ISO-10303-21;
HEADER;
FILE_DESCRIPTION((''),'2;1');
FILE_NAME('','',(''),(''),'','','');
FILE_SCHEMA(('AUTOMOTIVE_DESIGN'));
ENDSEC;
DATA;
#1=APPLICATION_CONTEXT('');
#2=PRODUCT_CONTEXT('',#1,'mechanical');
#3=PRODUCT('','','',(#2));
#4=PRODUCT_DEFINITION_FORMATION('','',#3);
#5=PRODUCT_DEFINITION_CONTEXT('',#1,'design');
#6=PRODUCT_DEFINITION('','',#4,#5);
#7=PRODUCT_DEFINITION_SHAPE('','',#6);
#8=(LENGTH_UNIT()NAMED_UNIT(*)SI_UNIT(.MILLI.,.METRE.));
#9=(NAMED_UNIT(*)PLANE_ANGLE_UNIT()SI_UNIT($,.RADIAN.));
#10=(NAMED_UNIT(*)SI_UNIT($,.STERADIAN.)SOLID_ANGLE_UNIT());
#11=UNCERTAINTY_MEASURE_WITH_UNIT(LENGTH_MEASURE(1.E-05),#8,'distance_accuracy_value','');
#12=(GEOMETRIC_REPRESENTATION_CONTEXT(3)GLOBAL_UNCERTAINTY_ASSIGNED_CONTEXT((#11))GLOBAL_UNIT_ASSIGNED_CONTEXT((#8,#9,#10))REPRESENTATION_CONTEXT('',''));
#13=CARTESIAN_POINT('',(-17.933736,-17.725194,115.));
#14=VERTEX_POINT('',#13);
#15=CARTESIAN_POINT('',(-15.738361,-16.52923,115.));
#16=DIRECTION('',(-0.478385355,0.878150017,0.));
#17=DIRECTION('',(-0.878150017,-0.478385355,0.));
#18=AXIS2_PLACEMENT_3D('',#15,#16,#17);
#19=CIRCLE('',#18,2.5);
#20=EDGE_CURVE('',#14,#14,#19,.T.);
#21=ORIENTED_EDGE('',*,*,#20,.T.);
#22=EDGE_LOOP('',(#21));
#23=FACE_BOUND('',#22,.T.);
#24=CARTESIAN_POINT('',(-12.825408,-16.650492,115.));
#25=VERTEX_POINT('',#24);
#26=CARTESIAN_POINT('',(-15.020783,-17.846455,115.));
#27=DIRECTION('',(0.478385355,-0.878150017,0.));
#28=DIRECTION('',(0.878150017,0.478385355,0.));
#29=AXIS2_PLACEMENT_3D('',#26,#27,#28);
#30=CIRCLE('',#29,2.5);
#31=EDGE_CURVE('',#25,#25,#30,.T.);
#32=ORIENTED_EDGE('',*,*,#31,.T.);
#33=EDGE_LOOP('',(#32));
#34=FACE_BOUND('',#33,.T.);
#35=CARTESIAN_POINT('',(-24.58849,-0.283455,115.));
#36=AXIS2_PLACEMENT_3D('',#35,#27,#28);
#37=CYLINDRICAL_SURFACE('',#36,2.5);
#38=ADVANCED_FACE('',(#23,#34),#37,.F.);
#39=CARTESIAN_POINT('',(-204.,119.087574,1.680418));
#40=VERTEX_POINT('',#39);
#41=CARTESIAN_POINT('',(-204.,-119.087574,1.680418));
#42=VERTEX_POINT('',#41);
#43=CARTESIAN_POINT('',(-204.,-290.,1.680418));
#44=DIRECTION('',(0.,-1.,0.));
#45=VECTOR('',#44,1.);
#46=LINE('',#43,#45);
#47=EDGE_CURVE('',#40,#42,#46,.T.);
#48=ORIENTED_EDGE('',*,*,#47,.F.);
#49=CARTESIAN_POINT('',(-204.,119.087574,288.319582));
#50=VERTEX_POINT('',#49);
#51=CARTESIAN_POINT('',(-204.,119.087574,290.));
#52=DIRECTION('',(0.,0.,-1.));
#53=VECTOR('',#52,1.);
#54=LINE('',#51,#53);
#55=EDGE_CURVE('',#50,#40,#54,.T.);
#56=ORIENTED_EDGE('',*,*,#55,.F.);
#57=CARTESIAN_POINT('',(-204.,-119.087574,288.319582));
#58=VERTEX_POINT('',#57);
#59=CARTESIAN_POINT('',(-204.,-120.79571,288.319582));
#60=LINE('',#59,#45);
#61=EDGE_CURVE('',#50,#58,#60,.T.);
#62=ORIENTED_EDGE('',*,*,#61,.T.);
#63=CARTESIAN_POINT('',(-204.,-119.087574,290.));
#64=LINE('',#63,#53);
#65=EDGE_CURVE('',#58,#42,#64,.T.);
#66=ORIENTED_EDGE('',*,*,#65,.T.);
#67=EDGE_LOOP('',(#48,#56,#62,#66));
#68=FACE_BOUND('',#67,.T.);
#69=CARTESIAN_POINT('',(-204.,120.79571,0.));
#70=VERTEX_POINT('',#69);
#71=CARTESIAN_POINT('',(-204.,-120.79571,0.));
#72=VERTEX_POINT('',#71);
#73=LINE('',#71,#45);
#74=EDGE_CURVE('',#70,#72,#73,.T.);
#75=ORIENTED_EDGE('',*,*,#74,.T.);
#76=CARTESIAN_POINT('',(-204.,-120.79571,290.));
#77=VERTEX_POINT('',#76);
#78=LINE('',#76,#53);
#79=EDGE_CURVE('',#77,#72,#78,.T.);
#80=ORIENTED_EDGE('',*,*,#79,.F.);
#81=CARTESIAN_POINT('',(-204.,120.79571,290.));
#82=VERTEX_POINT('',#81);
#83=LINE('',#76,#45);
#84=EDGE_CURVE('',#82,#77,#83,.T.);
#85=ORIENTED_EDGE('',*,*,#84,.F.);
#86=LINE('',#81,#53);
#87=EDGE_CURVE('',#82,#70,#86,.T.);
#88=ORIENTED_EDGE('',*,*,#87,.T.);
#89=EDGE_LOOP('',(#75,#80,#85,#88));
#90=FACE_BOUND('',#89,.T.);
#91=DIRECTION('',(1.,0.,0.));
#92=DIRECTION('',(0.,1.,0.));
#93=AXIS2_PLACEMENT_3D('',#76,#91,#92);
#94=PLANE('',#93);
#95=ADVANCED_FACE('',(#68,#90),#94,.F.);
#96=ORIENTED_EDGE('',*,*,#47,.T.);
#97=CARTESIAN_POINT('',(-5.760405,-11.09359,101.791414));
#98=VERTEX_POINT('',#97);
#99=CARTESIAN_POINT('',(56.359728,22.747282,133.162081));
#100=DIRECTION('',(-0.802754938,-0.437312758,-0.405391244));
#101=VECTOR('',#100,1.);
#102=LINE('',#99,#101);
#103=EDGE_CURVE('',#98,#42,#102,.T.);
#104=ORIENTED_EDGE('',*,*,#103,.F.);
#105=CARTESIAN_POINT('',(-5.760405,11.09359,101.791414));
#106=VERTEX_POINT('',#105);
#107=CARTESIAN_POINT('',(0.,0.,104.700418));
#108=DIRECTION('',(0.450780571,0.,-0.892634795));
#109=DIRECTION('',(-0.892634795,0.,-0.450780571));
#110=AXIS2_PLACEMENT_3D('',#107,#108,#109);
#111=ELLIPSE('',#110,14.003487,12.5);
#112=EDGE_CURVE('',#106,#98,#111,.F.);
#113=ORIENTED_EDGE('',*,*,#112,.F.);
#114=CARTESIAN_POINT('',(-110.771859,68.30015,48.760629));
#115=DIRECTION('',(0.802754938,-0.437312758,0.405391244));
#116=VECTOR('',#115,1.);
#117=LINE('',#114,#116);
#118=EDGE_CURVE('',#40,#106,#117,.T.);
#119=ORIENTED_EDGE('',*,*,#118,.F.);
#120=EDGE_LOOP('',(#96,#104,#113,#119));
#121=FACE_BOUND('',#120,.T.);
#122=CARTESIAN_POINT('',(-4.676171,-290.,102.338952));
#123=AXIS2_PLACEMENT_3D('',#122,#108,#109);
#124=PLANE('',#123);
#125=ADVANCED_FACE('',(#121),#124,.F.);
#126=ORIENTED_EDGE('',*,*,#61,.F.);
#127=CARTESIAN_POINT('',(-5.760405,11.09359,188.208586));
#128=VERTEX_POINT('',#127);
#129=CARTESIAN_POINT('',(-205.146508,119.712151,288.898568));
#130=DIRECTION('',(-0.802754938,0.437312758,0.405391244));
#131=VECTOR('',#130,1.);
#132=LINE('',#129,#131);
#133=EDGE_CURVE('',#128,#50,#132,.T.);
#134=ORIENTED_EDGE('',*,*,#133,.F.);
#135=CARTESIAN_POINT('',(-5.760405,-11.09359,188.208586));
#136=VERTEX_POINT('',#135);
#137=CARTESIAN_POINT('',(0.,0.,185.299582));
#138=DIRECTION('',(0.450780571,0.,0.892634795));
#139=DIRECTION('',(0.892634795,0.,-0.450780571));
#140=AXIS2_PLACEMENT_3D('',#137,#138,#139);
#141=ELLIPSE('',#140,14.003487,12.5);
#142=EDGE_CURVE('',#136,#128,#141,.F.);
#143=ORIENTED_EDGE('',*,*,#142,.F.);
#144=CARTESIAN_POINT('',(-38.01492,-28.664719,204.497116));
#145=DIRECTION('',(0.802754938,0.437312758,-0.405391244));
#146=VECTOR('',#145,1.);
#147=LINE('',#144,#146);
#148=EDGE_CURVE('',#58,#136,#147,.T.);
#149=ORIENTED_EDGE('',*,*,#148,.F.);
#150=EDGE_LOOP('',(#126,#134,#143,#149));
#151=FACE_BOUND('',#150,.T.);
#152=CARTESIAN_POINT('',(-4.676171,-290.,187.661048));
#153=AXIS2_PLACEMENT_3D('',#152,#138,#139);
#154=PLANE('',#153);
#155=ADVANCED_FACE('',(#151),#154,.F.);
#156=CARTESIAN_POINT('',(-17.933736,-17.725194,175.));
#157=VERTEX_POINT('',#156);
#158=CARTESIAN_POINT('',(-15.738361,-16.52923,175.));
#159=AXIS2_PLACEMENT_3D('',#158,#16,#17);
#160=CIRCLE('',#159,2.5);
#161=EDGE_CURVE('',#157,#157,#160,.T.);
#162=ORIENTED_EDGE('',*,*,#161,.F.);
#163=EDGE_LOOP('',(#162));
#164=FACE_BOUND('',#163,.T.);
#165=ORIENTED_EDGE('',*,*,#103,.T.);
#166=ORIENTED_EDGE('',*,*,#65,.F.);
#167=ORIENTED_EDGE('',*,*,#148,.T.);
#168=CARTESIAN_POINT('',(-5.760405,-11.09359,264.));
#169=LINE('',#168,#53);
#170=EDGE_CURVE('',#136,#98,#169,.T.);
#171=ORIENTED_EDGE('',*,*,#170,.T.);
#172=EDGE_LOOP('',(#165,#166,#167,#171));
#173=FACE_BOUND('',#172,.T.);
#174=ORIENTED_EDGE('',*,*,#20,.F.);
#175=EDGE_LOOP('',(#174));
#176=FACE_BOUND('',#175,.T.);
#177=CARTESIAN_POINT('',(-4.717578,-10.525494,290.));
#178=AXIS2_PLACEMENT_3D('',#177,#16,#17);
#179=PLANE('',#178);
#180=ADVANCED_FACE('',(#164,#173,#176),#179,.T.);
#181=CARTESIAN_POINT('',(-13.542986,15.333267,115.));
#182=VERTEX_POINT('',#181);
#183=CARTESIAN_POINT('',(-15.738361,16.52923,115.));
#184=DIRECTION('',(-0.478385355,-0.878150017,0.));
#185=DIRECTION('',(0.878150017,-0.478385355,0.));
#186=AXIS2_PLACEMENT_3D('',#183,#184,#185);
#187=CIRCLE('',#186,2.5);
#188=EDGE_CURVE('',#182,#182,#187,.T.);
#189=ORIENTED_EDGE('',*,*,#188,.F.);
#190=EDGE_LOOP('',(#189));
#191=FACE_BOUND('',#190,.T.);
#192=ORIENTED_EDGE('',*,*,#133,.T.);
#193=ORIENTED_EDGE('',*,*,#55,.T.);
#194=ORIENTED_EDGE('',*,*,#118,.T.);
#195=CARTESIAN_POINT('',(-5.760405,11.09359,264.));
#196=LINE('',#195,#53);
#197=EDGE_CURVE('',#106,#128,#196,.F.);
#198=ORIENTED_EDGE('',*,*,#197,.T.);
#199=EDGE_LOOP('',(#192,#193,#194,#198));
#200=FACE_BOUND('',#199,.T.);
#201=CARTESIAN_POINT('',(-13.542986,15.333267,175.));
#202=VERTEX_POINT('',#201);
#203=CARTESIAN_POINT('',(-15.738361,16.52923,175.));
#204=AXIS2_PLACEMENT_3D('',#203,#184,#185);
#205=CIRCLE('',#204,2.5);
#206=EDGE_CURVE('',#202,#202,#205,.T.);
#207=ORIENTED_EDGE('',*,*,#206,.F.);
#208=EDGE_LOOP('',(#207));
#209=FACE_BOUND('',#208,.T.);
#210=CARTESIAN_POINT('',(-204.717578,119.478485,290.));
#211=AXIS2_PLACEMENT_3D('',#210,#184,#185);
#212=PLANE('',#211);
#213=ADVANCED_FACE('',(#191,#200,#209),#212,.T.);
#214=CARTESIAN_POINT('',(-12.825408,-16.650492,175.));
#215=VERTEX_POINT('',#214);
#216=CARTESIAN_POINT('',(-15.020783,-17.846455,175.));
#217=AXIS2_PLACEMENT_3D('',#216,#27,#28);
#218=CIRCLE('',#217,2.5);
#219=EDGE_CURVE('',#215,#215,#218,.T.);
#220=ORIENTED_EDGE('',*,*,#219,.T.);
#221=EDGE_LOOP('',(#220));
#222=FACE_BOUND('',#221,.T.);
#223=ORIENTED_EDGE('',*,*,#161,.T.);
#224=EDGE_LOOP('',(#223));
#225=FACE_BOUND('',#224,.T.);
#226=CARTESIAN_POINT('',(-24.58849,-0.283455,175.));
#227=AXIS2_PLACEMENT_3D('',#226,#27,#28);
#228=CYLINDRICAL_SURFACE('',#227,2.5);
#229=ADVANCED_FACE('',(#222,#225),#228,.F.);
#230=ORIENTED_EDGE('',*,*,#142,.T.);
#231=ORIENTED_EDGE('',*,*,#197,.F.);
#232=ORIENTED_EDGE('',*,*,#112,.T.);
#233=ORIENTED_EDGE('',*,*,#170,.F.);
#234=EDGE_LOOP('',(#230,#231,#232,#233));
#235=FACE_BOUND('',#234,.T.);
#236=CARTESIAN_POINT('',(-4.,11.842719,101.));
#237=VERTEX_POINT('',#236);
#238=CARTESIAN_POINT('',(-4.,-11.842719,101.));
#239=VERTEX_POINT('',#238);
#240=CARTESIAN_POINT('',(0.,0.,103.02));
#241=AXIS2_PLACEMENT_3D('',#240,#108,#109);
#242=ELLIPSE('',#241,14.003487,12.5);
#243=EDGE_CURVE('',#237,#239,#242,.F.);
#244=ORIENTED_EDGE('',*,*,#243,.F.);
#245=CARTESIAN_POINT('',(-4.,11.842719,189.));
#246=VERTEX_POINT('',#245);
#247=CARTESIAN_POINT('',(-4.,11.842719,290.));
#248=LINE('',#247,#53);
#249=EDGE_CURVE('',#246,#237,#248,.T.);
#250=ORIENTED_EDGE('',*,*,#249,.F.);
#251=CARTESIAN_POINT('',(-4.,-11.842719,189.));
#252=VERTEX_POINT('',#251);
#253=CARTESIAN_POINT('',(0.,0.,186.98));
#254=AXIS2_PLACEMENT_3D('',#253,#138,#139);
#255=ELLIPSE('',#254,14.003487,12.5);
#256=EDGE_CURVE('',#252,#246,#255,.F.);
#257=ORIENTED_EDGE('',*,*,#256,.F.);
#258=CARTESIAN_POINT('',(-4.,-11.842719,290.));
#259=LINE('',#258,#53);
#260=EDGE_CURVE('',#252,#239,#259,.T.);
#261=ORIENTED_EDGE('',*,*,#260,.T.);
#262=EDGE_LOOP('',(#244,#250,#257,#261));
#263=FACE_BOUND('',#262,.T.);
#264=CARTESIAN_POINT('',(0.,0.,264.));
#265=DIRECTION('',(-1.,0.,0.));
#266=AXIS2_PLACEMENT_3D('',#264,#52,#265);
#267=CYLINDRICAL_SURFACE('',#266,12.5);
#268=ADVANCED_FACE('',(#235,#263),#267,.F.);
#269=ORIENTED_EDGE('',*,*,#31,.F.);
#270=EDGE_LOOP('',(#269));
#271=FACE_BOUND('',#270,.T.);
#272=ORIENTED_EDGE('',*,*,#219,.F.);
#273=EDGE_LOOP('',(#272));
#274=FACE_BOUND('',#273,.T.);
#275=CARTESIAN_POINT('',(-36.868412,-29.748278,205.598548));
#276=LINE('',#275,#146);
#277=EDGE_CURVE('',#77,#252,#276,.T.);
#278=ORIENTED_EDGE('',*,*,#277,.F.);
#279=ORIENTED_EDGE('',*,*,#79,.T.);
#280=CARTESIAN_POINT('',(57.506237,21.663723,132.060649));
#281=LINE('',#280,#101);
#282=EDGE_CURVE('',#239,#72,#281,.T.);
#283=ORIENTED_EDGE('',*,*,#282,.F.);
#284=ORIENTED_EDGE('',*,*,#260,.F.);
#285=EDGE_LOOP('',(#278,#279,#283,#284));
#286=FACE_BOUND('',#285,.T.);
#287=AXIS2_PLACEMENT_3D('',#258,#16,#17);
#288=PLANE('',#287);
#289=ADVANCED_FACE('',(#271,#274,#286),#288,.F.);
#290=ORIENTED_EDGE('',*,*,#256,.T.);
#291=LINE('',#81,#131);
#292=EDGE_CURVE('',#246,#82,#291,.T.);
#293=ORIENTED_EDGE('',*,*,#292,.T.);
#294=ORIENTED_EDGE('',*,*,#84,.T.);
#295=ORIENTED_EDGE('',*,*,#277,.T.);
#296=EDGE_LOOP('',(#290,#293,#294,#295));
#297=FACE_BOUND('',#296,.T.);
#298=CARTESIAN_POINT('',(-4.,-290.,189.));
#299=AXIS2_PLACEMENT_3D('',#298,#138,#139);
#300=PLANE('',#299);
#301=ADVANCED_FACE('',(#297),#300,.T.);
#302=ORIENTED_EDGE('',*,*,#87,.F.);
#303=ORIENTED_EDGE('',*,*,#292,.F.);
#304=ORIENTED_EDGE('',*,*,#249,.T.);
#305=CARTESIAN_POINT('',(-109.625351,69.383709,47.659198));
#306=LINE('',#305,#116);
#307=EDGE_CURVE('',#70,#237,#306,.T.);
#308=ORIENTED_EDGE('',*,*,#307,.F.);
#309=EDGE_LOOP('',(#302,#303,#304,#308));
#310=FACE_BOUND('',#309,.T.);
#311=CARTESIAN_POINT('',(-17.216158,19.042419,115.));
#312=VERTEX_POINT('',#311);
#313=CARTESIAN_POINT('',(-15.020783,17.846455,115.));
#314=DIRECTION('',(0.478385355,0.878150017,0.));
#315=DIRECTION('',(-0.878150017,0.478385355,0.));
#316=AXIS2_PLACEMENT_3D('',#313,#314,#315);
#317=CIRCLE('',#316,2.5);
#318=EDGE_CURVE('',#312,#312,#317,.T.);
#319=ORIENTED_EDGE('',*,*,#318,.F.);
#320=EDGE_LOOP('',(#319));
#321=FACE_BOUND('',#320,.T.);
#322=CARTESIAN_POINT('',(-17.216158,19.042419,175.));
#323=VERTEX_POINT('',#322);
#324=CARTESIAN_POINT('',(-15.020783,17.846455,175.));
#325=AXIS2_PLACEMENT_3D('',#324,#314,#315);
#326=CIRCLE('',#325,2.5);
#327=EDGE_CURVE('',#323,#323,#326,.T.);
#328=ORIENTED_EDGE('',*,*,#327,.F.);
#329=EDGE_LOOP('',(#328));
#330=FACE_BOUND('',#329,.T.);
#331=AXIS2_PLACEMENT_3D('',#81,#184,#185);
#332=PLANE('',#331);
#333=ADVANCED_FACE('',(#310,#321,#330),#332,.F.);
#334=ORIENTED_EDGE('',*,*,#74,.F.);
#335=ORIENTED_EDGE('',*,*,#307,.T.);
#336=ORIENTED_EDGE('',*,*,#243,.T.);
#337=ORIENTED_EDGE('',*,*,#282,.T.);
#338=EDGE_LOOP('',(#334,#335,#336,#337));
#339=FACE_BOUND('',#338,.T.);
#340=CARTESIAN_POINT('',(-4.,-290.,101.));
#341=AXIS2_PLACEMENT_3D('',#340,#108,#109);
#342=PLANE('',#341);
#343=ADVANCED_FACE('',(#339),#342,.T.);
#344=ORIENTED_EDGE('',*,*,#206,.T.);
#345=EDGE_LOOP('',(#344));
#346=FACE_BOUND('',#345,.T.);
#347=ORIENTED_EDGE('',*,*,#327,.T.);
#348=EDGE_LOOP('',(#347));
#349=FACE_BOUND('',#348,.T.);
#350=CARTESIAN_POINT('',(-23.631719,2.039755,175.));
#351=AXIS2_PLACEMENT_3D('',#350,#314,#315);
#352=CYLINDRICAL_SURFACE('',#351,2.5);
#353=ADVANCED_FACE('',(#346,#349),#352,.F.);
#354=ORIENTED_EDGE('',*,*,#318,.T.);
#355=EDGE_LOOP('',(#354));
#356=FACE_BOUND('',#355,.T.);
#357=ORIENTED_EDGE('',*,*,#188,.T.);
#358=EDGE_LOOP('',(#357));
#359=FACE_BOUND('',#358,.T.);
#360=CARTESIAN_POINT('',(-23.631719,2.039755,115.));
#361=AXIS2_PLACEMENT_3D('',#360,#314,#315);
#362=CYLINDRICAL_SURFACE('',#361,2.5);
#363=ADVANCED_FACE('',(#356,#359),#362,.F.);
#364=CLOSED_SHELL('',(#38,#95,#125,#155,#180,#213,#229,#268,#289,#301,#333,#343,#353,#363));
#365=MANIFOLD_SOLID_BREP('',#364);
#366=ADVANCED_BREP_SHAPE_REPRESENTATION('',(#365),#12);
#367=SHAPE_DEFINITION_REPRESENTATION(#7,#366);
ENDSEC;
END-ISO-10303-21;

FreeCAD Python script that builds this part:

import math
import FreeCAD as App
import Part
import Sketcher

V = App.Vector
Q = App.Units.Quantity


def faces_at(feature, points):
    """Names of the faces that lie closest to the given points."""
    faces = feature.Shape.Faces
    near = lambda p: min(range(len(faces)), key=lambda i: faces[i].distToShape(Part.Vertex(*p))[0])
    return sorted({f"Face{near(p) + 1}" for p in points})

doc = App.newDocument("Part")
body = doc.addObject("PartDesign::Body", "Body")

sketch1 = doc.addObject("Sketcher::SketchObject", "Sketch")
body.addObject(sketch1)
sketch1.AttachmentSupport = (doc.XY_Plane, [""])
sketch1.MapMode = "FlatFace"
sketch1.addGeometry([
    Part.LineSegment(V(-204, -120.8, 0), V(-4, -11.8, 0)),
    Part.LineSegment(V(-4, -11.8, 0), V(-4, -8.6, 0)),
    Part.ArcOfCircle(Part.Circle(V(0, 0, 0), V(0, 0, 1), 9.5), math.radians(115), math.radians(245)),
    Part.LineSegment(V(-4, 8.6, 0), V(-4, 11.8, 0)),
    Part.LineSegment(V(-4, 11.8, 0), V(-204, 120.8, 0)),
    Part.LineSegment(V(-204, 120.8, 0), V(-204, -120.8, 0)),
], False)
sketch1.addConstraint([
    Sketcher.Constraint("Coincident", 0, 2, 1, 1),
    Sketcher.Constraint("Coincident", 1, 2, 2, 2),
    Sketcher.Constraint("Coincident", 2, 1, 3, 1),
    Sketcher.Constraint("Coincident", 3, 2, 4, 1),
    Sketcher.Constraint("Coincident", 4, 2, 5, 1),
    Sketcher.Constraint("Coincident", 5, 2, 0, 1),
    Sketcher.Constraint("Vertical", 1),
    Sketcher.Constraint("Vertical", 3),
    Sketcher.Constraint("Vertical", 5),
    Sketcher.Constraint("Coincident", 2, 3, -1, 1),
    Sketcher.Constraint("Symmetric", 0, 2, 3, 2, -1),
    Sketcher.Constraint("Equal", 0, 4),
    Sketcher.Constraint("Radius", 2, Q("9.5 mm")),
    Sketcher.Constraint("DistanceX", 0, 2, -1, 1, Q("4 mm")),
    Sketcher.Constraint("DistanceX", 4, 2, -1, 1, Q("204 mm")),
    Sketcher.Constraint("Angle", 0, Q("28.58 deg")),
    Sketcher.Constraint("DistanceY", 5, 2, 5, 1, Q("241.591421 mm")),
])
pad1 = doc.addObject("PartDesign::Pad", "Pad")
body.addObject(pad1)
pad1.Profile = sketch1
pad1.Length = 290

sketch2 = doc.addObject("Sketcher::SketchObject", "Sketch001")
body.addObject(sketch2)
sketch2.AttachmentSupport = (doc.XZ_Plane, [""])
sketch2.MapMode = "FlatFace"
sketch2.addGeometry([
    Part.LineSegment(V(-204, 290, 0), V(-4, 189, 0)),
    Part.LineSegment(V(-4, 189, 0), V(-4, 290, 0)),
    Part.LineSegment(V(-4, 290, 0), V(-204, 290, 0)),
    Part.LineSegment(V(-4, 101, 0), V(-204, 0, 0)),
    Part.LineSegment(V(-204, 0, 0), V(-4, 0, 0)),
    Part.LineSegment(V(-4, 0, 0), V(-4, 101, 0)),
], False)
sketch2.addConstraint([
    Sketcher.Constraint("Coincident", 0, 2, 1, 1),
    Sketcher.Constraint("Coincident", 1, 2, 2, 1),
    Sketcher.Constraint("Coincident", 2, 2, 0, 1),
    Sketcher.Constraint("Coincident", 3, 2, 4, 1),
    Sketcher.Constraint("Coincident", 4, 2, 5, 1),
    Sketcher.Constraint("Coincident", 5, 2, 3, 1),
    Sketcher.Constraint("Vertical", 1),
    Sketcher.Constraint("Horizontal", 2),
    Sketcher.Constraint("Horizontal", 4),
    Sketcher.Constraint("Vertical", 5),
    Sketcher.Constraint("PointOnObject", 3, 2, -1),
    Sketcher.Constraint("Vertical", 2, 2, 3, 2),
    Sketcher.Constraint("Vertical", 1, 2, 4, 2),
    Sketcher.Constraint("Equal", 1, 5),
    Sketcher.Constraint("DistanceX", 2, 2, 2, 1, Q("200 mm")),
    Sketcher.Constraint("DistanceY", 1, 1, 1, 2, Q("101 mm")),
    Sketcher.Constraint("DistanceX", 0, 2, -1, 1, Q("4 mm")),
    Sketcher.Constraint("DistanceY", -1, 1, 0, 2, Q("189 mm")),
])
pocket1 = doc.addObject("PartDesign::Pocket", "Pocket")
body.addObject(pocket1)
pocket1.Profile = sketch2
pocket1.Type = "ThroughAll"
pocket1.Midplane = True
doc.recompute()

thickness = doc.addObject("PartDesign::Thickness", "Thickness")
body.addObject(thickness)
thickness.Base = (pocket1, faces_at(pocket1, [(-204, 0, 145), (-9.5, 0, 145)]))
thickness.Value = 1.5
thickness.Reversed = True
thickness.Join = "Intersection"

sketch3 = doc.addObject("Sketcher::SketchObject", "Sketch002")
body.addObject(sketch3)
sketch3.Placement = App.Placement(V(4.059646, -7.452106, 0), App.Rotation(V(-0.878150017, -0.478385355, 0), V(0, 0, -1), V(0.478385355, -0.878150017, 0), "ZXY"))
sketch3.addGeometry([
    Part.Circle(V(21.7, -175, 0), V(0, 0, 1), 2.5),
    Part.Circle(V(21.7, -115, 0), V(0, 0, 1), 2.5),
], False)
sketch3.addConstraint([
    Sketcher.Constraint("Equal", 0, 1),
    Sketcher.Constraint("Vertical", 0, 3, 1, 3),
    Sketcher.Constraint("Diameter", 0, Q("5 mm")),
    Sketcher.Constraint("DistanceY", 0, 3, -1, 1, Q("175 mm")),
    Sketcher.Constraint("DistanceY", 1, 3, -1, 1, Q("115 mm")),
    Sketcher.Constraint("DistanceX", -1, 1, 0, 3, Q("21.727984 mm")),
])
pocket2 = doc.addObject("PartDesign::Pocket", "Pocket001")
body.addObject(pocket2)
pocket2.Profile = sketch3
pocket2.Length = 20

sketch4 = doc.addObject("Sketcher::SketchObject", "Sketch003")
body.addObject(sketch4)
sketch4.Placement = App.Placement(V(4.059646, 7.452106, 0), App.Rotation(V(0.878150017, -0.478385355, 0), V(0, 0, -1), V(0.478385355, 0.878150017, 0), "ZXY"))
sketch4.addGeometry([
    Part.Circle(V(-21.7, -115, 0), V(0, 0, 1), 2.5),
    Part.Circle(V(-21.7, -175, 0), V(0, 0, 1), 2.5),
], False)
sketch4.addConstraint([
    Sketcher.Constraint("Equal", 0, 1),
    Sketcher.Constraint("Vertical", 0, 3, 1, 3),
    Sketcher.Constraint("Diameter", 0, Q("5 mm")),
    Sketcher.Constraint("DistanceY", 0, 3, -1, 1, Q("115 mm")),
    Sketcher.Constraint("DistanceY", 1, 3, -1, 1, Q("175 mm")),
    Sketcher.Constraint("DistanceX", 0, 3, -1, 1, Q("21.727984 mm")),
])
pocket3 = doc.addObject("PartDesign::Pocket", "Pocket002")
body.addObject(pocket3)
pocket3.Profile = sketch4
pocket3.Length = 18

sketch5 = doc.addObject("Sketcher::SketchObject", "Sketch004")
body.addObject(sketch5)
sketch5.AttachmentSupport = (doc.XY_Plane, [""])
sketch5.MapMode = "FlatFace"
sketch5.AttachmentOffset = App.Placement(V(0, 0, 145), App.Rotation())
sketch5.addGeometry([
    Part.LineSegment(V(-4, -12, 0), V(-4, 12, 0)),
    Part.ArcOfCircle(Part.Circle(V(0, 0, 0), V(0, 0, 1), 12), math.radians(109), math.radians(251)),
], False)
sketch5.addConstraint([
    Sketcher.Constraint("Coincident", 0, 1, 1, 2),
    Sketcher.Constraint("Coincident", 1, 1, 0, 2),
    Sketcher.Constraint("Vertical", 0),
    Sketcher.Constraint("Coincident", 1, 3, -1, 1),
    Sketcher.Constraint("Radius", 1, Q("12.5 mm")),
    Sketcher.Constraint("DistanceX", 0, 1, -1, 1, Q("4 mm")),
])
pocket4 = doc.addObject("PartDesign::Pocket", "Pocket003")
body.addObject(pocket4)
pocket4.Profile = sketch5
pocket4.Type = "ThroughAll"
pocket4.Midplane = True

doc.recompute()
